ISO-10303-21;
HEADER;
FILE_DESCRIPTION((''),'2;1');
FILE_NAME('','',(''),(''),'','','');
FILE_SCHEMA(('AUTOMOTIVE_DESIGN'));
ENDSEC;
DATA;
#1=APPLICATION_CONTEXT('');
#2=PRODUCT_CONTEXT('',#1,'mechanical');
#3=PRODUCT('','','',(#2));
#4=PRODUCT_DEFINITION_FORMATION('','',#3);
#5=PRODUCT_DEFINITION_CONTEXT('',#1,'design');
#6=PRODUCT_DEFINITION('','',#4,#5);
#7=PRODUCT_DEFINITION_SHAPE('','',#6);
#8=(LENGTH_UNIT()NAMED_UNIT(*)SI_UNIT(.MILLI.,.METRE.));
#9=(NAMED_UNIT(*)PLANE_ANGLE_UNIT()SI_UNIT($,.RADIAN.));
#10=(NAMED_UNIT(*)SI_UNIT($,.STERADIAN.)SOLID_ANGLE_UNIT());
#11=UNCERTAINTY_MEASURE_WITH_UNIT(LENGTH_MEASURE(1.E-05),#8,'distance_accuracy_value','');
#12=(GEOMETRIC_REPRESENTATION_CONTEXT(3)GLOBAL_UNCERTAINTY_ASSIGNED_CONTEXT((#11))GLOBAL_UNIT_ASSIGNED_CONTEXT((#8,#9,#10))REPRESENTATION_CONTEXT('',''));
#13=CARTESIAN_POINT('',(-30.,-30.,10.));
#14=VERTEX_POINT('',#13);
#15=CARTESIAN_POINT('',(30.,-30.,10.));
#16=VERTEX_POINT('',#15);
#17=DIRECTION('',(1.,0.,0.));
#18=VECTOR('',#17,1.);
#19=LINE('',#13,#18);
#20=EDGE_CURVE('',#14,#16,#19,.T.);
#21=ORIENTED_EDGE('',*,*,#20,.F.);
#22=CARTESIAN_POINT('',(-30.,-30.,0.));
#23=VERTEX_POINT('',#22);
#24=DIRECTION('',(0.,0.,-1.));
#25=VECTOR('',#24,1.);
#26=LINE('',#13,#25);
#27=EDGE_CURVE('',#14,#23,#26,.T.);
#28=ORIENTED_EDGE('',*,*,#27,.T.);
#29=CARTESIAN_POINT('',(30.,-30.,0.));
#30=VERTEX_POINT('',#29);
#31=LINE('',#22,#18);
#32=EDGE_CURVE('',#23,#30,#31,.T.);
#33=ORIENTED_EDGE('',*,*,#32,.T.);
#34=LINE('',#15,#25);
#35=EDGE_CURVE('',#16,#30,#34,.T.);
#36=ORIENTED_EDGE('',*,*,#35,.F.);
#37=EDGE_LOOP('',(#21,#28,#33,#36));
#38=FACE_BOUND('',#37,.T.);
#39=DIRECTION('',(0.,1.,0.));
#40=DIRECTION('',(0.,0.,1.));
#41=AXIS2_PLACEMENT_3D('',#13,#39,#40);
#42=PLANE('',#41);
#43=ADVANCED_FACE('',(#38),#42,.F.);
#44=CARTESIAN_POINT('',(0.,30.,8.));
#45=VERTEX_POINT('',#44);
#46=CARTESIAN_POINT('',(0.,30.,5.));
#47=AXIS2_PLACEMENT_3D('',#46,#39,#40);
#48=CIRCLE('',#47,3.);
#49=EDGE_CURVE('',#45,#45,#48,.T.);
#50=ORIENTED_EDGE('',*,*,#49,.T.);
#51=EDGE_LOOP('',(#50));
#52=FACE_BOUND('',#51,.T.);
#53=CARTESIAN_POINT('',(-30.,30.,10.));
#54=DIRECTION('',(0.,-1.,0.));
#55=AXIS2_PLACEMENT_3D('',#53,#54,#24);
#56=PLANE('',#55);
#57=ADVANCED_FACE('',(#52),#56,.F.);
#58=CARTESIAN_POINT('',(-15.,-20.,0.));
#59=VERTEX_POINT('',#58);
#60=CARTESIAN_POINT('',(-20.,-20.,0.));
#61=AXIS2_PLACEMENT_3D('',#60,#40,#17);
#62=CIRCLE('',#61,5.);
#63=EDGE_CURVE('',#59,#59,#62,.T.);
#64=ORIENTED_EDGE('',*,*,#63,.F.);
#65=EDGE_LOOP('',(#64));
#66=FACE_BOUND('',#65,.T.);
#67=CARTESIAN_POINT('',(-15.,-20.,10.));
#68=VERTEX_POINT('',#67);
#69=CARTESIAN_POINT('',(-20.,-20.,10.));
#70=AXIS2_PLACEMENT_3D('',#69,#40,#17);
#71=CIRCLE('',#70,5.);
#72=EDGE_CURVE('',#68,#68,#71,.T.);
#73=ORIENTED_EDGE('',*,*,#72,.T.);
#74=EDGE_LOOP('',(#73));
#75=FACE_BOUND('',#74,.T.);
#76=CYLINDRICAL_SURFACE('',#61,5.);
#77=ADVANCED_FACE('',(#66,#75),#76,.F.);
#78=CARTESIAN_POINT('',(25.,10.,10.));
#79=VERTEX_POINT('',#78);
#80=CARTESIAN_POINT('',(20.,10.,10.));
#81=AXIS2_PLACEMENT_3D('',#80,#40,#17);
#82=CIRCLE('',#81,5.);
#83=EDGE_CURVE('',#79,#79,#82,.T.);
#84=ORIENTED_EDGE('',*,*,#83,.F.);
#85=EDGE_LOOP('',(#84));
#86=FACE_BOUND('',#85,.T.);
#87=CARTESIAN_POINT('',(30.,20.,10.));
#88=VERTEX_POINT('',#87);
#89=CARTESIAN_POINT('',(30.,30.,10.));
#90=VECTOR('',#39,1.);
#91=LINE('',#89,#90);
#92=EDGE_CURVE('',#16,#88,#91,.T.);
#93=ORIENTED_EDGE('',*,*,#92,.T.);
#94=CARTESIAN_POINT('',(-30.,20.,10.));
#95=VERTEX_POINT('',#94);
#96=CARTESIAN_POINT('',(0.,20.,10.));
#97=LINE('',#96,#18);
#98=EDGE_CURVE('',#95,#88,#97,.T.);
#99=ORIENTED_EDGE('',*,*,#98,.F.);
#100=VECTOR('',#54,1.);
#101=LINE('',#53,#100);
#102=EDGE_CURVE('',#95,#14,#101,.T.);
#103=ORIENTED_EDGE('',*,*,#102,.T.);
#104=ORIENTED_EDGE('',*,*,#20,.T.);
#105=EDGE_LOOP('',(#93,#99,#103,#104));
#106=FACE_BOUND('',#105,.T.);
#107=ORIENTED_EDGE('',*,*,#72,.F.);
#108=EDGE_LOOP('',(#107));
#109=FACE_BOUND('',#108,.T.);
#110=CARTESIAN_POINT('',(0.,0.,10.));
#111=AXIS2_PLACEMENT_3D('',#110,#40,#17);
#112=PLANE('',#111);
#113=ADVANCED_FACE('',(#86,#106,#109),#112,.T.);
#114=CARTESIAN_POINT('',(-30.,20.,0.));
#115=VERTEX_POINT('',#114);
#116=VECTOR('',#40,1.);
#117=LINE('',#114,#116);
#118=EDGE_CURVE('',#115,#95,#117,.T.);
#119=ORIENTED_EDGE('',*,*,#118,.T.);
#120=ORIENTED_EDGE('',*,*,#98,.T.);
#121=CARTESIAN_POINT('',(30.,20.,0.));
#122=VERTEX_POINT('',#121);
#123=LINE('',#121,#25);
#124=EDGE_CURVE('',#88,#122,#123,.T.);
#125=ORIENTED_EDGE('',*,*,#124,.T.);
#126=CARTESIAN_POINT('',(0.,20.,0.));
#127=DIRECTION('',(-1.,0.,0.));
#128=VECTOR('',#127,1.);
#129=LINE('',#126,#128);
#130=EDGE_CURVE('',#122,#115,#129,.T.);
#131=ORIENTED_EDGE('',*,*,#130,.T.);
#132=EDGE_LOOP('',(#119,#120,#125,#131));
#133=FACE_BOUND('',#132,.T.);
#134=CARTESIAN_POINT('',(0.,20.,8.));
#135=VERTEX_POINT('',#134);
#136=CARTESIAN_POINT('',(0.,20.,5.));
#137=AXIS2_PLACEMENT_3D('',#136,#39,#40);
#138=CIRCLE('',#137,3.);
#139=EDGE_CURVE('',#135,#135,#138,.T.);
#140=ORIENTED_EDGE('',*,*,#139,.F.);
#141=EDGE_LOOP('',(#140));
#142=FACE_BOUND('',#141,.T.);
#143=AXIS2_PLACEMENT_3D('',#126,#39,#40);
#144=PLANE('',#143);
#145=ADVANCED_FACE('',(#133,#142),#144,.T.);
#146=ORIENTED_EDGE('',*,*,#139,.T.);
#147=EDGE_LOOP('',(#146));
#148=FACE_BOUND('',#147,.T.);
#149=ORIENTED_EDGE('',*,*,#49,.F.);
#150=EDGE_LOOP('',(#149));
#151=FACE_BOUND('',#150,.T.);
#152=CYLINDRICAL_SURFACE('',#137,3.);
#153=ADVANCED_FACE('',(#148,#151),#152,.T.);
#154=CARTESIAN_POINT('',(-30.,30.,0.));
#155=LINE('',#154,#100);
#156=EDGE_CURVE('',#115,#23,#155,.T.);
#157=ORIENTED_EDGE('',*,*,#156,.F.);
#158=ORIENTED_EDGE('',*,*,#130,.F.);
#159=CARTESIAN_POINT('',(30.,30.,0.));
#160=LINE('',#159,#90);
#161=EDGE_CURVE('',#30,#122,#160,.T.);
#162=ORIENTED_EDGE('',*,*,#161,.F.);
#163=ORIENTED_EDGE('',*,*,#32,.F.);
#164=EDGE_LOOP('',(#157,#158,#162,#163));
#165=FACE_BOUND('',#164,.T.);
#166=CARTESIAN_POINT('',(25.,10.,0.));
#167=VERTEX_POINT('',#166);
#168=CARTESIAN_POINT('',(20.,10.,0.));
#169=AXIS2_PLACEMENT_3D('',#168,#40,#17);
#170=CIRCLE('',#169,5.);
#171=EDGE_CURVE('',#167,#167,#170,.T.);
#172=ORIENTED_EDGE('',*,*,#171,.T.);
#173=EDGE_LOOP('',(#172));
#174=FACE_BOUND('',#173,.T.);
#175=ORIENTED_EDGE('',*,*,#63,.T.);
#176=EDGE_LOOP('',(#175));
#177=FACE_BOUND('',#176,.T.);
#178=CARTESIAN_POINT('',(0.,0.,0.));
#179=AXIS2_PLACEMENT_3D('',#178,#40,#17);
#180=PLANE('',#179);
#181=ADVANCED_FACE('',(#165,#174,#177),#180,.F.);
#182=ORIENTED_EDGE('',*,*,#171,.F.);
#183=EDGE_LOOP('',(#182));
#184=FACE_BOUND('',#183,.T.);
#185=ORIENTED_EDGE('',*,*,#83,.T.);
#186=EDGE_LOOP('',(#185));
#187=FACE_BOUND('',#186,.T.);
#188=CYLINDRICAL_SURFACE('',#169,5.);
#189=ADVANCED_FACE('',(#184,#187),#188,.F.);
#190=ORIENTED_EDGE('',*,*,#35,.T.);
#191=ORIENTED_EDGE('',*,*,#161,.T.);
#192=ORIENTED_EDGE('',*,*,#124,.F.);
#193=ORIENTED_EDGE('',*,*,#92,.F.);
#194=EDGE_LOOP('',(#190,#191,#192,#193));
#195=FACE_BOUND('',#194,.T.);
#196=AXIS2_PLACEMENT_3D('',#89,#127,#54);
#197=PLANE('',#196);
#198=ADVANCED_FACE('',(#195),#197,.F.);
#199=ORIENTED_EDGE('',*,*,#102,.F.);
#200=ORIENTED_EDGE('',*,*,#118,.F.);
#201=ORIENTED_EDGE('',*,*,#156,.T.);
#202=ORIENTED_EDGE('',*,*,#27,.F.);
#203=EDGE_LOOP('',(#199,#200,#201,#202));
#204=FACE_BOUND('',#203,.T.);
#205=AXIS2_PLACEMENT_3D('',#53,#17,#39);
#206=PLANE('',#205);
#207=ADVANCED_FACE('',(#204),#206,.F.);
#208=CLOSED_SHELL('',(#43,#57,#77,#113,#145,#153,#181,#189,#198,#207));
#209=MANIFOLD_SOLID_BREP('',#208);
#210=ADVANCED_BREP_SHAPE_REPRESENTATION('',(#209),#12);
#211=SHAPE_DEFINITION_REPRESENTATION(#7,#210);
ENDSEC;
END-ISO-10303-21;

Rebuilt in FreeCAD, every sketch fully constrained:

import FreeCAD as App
import Part
import Sketcher


def add_polygon(sketch, points):
    """Adds a closed chain of lines whose ends are joined by coincident constraints."""
    first, n = sketch.GeometryCount, len(points)
    for a, b in zip(points, points[1:] + points[:1]):
        sketch.addGeometry(Part.LineSegment(App.Vector(*a, 0), App.Vector(*b, 0)), False)
    for i in range(n):
        sketch.addConstraint(Sketcher.Constraint("Coincident", first + i, 2, first + (i + 1) % n, 1))

doc = App.newDocument("Part")
body = doc.addObject("PartDesign::Body", "Body")

sketch1 = body.newObject("Sketcher::SketchObject", "Sketch")
sketch1.AttachmentSupport = (doc.getObject("XY_Plane"), [""])
sketch1.MapMode = "FlatFace"
add_polygon(sketch1, [(-30, 30), (-30, -30), (30, -30), (30, 30)])
sketch1.addConstraint([
    Sketcher.Constraint("Vertical", 0),
    Sketcher.Constraint("Horizontal", 1),
    Sketcher.Constraint("Vertical", 2),
    Sketcher.Constraint("Horizontal", 3),
    Sketcher.Constraint("Symmetric", 0, 2, 2, 2, -1, 1),
    Sketcher.Constraint("Equal", 3, 0),
    Sketcher.Constraint("DistanceX", 1, 1, 1, 2, 60.0),
])
pad1 = body.newObject("PartDesign::Pad", "Pad")
pad1.Profile = sketch1
pad1.Length = 10

sketch2 = body.newObject("Sketcher::SketchObject", "Sketch001")
sketch2.AttachmentSupport = (doc.getObject("XZ_Plane"), [""])
sketch2.MapMode = "FlatFace"
sketch2.AttachmentOffset = App.Placement(App.Vector(0, 0, -30), App.Rotation())
add_polygon(sketch2, [(-30, 0), (-30, 10), (30, 10), (30, 0)])
sketch2.addGeometry(Part.Circle(App.Vector(0, 5, 0), App.Vector(0, 0, 1), 3), False)
sketch2.addConstraint([
    Sketcher.Constraint("Vertical", 0),
    Sketcher.Constraint("Horizontal", 1),
    Sketcher.Constraint("Vertical", 2),
    Sketcher.Constraint("Horizontal", 3),
    Sketcher.Constraint("Symmetric", 2, 2, 3, 2, -1, 1),
    Sketcher.Constraint("PointOnObject", 4, 3, -2),
    Sketcher.Constraint("Diameter", 4, 6.0),
    Sketcher.Constraint("DistanceX", 1, 1, 1, 2, 60.0),
    Sketcher.Constraint("DistanceY", 0, 1, 0, 2, 10.0),
    Sketcher.Constraint("DistanceY", -1, 1, 4, 3, 5.0),
])
pocket1 = body.newObject("PartDesign::Pocket", "Pocket")
pocket1.Profile = sketch2
pocket1.Length = 10
pocket1.Reversed = True

sketch3 = body.newObject("Sketcher::SketchObject", "Sketch002")
sketch3.AttachmentSupport = (doc.getObject("XY_Plane"), [""])
sketch3.MapMode = "FlatFace"
sketch3.AttachmentOffset = App.Placement(App.Vector(0, 0, 10), App.Rotation())
sketch3.addGeometry([
    Part.Circle(App.Vector(-20, -20, 0), App.Vector(0, 0, 1), 5),
    Part.Circle(App.Vector(20, 10, 0), App.Vector(0, 0, 1), 5),
], False)
sketch3.addConstraint([
    Sketcher.Constraint("Equal", 0, 1),
    Sketcher.Constraint("Diameter", 0, 10.0),
    Sketcher.Constraint("DistanceX", 0, 3, -1, 1, 20.0),
    Sketcher.Constraint("DistanceY", 0, 3, -1, 1, 20.0),
    Sketcher.Constraint("DistanceX", -1, 1, 1, 3, 20.0),
    Sketcher.Constraint("DistanceY", -1, 1, 1, 3, 10.0),
])
pocket2 = body.newObject("PartDesign::Pocket", "Pocket001")
pocket2.Profile = sketch3
pocket2.Type = "ThroughAll"

doc.recompute()
